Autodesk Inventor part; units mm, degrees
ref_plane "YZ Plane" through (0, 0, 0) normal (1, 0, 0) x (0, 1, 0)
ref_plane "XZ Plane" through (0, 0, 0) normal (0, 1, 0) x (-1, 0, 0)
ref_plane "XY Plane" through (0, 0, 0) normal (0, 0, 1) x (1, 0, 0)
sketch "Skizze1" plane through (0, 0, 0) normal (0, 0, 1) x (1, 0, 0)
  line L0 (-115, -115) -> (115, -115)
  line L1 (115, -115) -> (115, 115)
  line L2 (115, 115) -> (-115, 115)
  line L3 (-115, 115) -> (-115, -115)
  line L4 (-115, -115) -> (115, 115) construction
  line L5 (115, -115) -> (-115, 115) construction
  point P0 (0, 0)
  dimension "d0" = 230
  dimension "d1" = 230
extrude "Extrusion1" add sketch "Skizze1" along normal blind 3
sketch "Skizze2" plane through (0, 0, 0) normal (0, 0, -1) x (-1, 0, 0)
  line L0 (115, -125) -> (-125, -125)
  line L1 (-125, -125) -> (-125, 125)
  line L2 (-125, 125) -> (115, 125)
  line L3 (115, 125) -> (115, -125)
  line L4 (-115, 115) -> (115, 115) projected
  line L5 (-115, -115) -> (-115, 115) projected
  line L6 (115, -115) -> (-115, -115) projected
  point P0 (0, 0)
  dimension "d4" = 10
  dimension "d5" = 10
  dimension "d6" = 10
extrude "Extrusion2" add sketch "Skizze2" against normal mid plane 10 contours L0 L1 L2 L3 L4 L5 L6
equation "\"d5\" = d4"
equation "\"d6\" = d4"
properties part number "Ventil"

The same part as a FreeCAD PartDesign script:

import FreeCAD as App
import Part
import Sketcher
from FreeCAD import Vector

doc = App.newDocument("Part")
body = doc.addObject("PartDesign::Body", "Body")

sketch1 = doc.addObject("Sketcher::SketchObject", "Sketch")
body.addObject(sketch1)
sketch1.AttachmentSupport = (doc.XY_Plane, [""])
sketch1.MapMode = "FlatFace"
sketch1.addGeometry([
    Part.LineSegment(Vector(-115, 115, 0), Vector(-115, -115, 0)),
    Part.LineSegment(Vector(-115, -115, 0), Vector(115, -115, 0)),
    Part.LineSegment(Vector(115, -115, 0), Vector(115, 115, 0)),
    Part.LineSegment(Vector(115, 115, 0), Vector(-115, 115, 0)),
], False)
sketch1.addConstraint([
    Sketcher.Constraint("Coincident", 0, 2, 1, 1),
    Sketcher.Constraint("Coincident", 1, 2, 2, 1),
    Sketcher.Constraint("Coincident", 2, 2, 3, 1),
    Sketcher.Constraint("Coincident", 3, 2, 0, 1),
    Sketcher.Constraint("Vertical", 0),
    Sketcher.Constraint("Horizontal", 1),
    Sketcher.Constraint("Vertical", 2),
    Sketcher.Constraint("Horizontal", 3),
    Sketcher.Constraint("Symmetric", 0, 2, 2, 2, -1, 1),
    Sketcher.Constraint("Equal", 3, 0),
    Sketcher.Constraint("DistanceX", 1, 1, 1, 2, 230.0),
])
pad1 = doc.addObject("PartDesign::Pad", "Pad")
body.addObject(pad1)
pad1.Profile = sketch1
pad1.Length = 3

sketch2 = doc.addObject("Sketcher::SketchObject", "Sketch001")
body.addObject(sketch2)
sketch2.AttachmentSupport = (doc.XY_Plane, [""])
sketch2.MapMode = "FlatFace"
sketch2.addGeometry([
    Part.LineSegment(Vector(125, -125, 0), Vector(-115, -125, 0)),
    Part.LineSegment(Vector(-115, -125, 0), Vector(-115, -115, 0)),
    Part.LineSegment(Vector(-115, -115, 0), Vector(115, -115, 0)),
    Part.LineSegment(Vector(115, -115, 0), Vector(115, 115, 0)),
    Part.LineSegment(Vector(115, 115, 0), Vector(-115, 115, 0)),
    Part.LineSegment(Vector(-115, 115, 0), Vector(-115, 125, 0)),
    Part.LineSegment(Vector(-115, 125, 0), Vector(125, 125, 0)),
    Part.LineSegment(Vector(125, 125, 0), Vector(125, -125, 0)),
], False)
sketch2.addConstraint([
    Sketcher.Constraint("Coincident", 0, 2, 1, 1),
    Sketcher.Constraint("Coincident", 1, 2, 2, 1),
    Sketcher.Constraint("Coincident", 2, 2, 3, 1),
    Sketcher.Constraint("Coincident", 3, 2, 4, 1),
    Sketcher.Constraint("Coincident", 4, 2, 5, 1),
    Sketcher.Constraint("Coincident", 5, 2, 6, 1),
    Sketcher.Constraint("Coincident", 6, 2, 7, 1),
    Sketcher.Constraint("Coincident", 7, 2, 0, 1),
    Sketcher.Constraint("Horizontal", 0),
    Sketcher.Constraint("Vertical", 1),
    Sketcher.Constraint("Horizontal", 2),
    Sketcher.Constraint("Vertical", 3),
    Sketcher.Constraint("Horizontal", 4),
    Sketcher.Constraint("Vertical", 5),
    Sketcher.Constraint("Horizontal", 6),
    Sketcher.Constraint("Vertical", 7),
    Sketcher.Constraint("Symmetric", 1, 2, 3, 2, -1, 1),
    Sketcher.Constraint("Symmetric", 0, 2, 5, 2, -1),
    Sketcher.Constraint("Equal", 4, 3),
    Sketcher.Constraint("DistanceY", 1, 1, 1, 2, 10.0),
    Sketcher.Constraint("DistanceX", 3, 2, 6, 2, 10.0),
    Sketcher.Constraint("DistanceX", 0, 2, 0, 1, 240.0),
])
pad2 = doc.addObject("PartDesign::Pad", "Pad001")
body.addObject(pad2)
pad2.Profile = sketch2
pad2.Length = 10
pad2.Midplane = True

doc.recompute()
